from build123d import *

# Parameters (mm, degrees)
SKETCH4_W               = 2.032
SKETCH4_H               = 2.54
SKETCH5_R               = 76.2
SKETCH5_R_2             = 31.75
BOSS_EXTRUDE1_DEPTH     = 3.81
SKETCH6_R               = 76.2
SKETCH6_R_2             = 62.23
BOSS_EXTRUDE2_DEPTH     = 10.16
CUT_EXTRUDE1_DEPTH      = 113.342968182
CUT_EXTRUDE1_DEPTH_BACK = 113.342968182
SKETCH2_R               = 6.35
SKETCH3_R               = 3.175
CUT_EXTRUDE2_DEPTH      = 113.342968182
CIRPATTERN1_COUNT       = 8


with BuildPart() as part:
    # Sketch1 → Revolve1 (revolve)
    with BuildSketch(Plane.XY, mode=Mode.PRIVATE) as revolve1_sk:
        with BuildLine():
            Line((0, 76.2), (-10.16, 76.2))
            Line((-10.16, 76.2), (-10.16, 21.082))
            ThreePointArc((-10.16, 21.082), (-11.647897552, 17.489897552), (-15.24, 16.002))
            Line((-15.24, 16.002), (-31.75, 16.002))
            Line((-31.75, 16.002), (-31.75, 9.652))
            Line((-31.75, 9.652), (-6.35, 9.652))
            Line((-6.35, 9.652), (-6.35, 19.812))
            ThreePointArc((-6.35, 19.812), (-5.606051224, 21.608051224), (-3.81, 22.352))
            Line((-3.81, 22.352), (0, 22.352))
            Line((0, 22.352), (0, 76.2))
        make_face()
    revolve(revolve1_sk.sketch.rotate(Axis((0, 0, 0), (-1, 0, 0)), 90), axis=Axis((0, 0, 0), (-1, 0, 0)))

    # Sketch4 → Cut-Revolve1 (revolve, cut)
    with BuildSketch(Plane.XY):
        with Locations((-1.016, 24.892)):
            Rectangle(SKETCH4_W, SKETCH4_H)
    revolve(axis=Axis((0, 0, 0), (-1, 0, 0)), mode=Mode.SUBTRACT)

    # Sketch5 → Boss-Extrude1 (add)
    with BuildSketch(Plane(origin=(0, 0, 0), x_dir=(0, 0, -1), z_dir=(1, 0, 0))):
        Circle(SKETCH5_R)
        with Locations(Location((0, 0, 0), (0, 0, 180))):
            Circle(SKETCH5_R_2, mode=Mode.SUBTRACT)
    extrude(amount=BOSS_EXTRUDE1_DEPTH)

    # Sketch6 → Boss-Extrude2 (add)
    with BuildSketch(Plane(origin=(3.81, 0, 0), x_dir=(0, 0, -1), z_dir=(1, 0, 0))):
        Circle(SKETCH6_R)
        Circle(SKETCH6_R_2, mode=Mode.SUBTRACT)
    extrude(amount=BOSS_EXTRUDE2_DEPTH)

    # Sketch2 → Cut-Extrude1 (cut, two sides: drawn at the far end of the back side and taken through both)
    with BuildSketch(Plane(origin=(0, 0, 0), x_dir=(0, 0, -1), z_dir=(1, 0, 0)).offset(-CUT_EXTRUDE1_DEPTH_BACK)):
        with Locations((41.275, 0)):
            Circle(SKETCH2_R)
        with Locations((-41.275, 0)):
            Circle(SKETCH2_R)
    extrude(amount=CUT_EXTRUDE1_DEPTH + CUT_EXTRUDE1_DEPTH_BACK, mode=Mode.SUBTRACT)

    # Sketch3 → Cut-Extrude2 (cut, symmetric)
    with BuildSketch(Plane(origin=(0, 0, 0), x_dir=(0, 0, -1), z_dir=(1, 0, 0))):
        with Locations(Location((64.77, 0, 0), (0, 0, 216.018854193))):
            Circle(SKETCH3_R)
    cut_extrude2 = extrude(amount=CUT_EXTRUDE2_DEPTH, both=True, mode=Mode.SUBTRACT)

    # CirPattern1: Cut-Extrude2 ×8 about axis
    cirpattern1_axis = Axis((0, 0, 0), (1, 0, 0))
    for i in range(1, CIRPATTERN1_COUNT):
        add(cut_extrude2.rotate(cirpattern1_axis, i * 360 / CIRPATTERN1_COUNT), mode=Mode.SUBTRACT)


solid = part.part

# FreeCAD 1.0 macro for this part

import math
import FreeCAD as App
import Part
import Sketcher
Q = App.Units.Quantity

doc = App.newDocument("Part")
body = doc.addObject("PartDesign::Body", "Body")

sketch1 = doc.addObject("Sketcher::SketchObject", "Sketch")
body.addObject(sketch1)
sketch1.AttachmentSupport = (doc.XY_Plane, [""])
sketch1.MapMode = "FlatFace"
sketch1.addGeometry(Part.LineSegment(App.Vector(0, 76.2, 0), App.Vector(-10.2, 76.2, 0)), False)
sketch1.addGeometry(Part.LineSegment(App.Vector(-10.2, 76.2, 0), App.Vector(-10.2, 21.1, 0)), False)
sketch1.addGeometry(Part.ArcOfCircle(Part.Circle(App.Vector(-15.2, 21.1, 0), App.Vector(0, 0, 1), 5.1), math.radians(-90), math.radians(0)), False)
sketch1.addGeometry(Part.LineSegment(App.Vector(-15.2, 16, 0), App.Vector(-31.8, 16, 0)), False)
sketch1.addGeometry(Part.LineSegment(App.Vector(-31.8, 16, 0), App.Vector(-31.8, 9.7, 0)), False)
sketch1.addGeometry(Part.LineSegment(App.Vector(-31.8, 9.7, 0), App.Vector(-6.3, 9.7, 0)), False)
sketch1.addGeometry(Part.LineSegment(App.Vector(-6.3, 9.7, 0), App.Vector(-6.3, 19.8, 0)), False)
sketch1.addGeometry(Part.ArcOfCircle(Part.Circle(App.Vector(-3.8, 19.8, 0), App.Vector(0, 0, 1), 2.5), math.radians(90), math.radians(180)), False)
sketch1.addGeometry(Part.LineSegment(App.Vector(-3.8, 22.4, 0), App.Vector(0, 22.4, 0)), False)
sketch1.addGeometry(Part.LineSegment(App.Vector(0, 22.4, 0), App.Vector(0, 76.2, 0)), False)
sketch1.addConstraint(Sketcher.Constraint("Coincident", 0, 2, 1, 1))
sketch1.addConstraint(Sketcher.Constraint("Tangent", 1, 2, 2, 2))
sketch1.addConstraint(Sketcher.Constraint("Tangent", 2, 1, 3, 1))
sketch1.addConstraint(Sketcher.Constraint("Coincident", 3, 2, 4, 1))
sketch1.addConstraint(Sketcher.Constraint("Coincident", 4, 2, 5, 1))
sketch1.addConstraint(Sketcher.Constraint("Coincident", 5, 2, 6, 1))
sketch1.addConstraint(Sketcher.Constraint("Tangent", 6, 2, 7, 2))
sketch1.addConstraint(Sketcher.Constraint("Tangent", 7, 1, 8, 1))
sketch1.addConstraint(Sketcher.Constraint("Coincident", 8, 2, 9, 1))
sketch1.addConstraint(Sketcher.Constraint("Coincident", 9, 2, 0, 1))
sketch1.addConstraint(Sketcher.Constraint("Horizontal", 0))
sketch1.addConstraint(Sketcher.Constraint("Vertical", 1))
sketch1.addConstraint(Sketcher.Constraint("Horizontal", 3))
sketch1.addConstraint(Sketcher.Constraint("Vertical", 4))
sketch1.addConstraint(Sketcher.Constraint("Horizontal", 5))
sketch1.addConstraint(Sketcher.Constraint("Vertical", 6))
sketch1.addConstraint(Sketcher.Constraint("Horizontal", 8))
sketch1.addConstraint(Sketcher.Constraint("Vertical", 9))
sketch1.addConstraint(Sketcher.Constraint("PointOnObject", 8, 2, -2))
sketch1.addConstraint(Sketcher.Constraint("Equal", 0, 6))
sketch1.addConstraint(Sketcher.Constraint("Radius", 2, Q("0.2 in")))
sketch1.addConstraint(Sketcher.Constraint("Radius", 7, Q("0.1 in")))
sketch1.addConstraint(Sketcher.Constraint("DistanceX", 5, 1, 5, 2, Q("1 in")))
sketch1.addConstraint(Sketcher.Constraint("DistanceX", 0, 2, 0, 1, Q("0.4 in")))
sketch1.addConstraint(Sketcher.Constraint("DistanceY", -1, 1, 0, 2, Q("3 in")))
sketch1.addConstraint(Sketcher.Constraint("DistanceX", 3, 2, 3, 1, Q("0.65 in")))
sketch1.addConstraint(Sketcher.Constraint("DistanceY", 1, 2, 1, 1, Q("2.17 in")))
sketch1.addConstraint(Sketcher.Constraint("DistanceY", 4, 2, 4, 1, Q("0.25 in")))
revolution = doc.addObject("PartDesign::Revolution", "Revolution")
body.addObject(revolution)
revolution.Profile = sketch1
revolution.ReferenceAxis = (sketch1, ["H_Axis"])
revolution.Angle = 360

sketch2 = doc.addObject("Sketcher::SketchObject", "Sketch001")
body.addObject(sketch2)
sketch2.AttachmentSupport = (doc.XY_Plane, [""])
sketch2.MapMode = "FlatFace"
sketch2.addGeometry(Part.LineSegment(App.Vector(-2, 26.2, 0), App.Vector(-2, 23.6, 0)), False)
sketch2.addGeometry(Part.LineSegment(App.Vector(-2, 23.6, 0), App.Vector(0, 23.6, 0)), False)
sketch2.addGeometry(Part.LineSegment(App.Vector(0, 23.6, 0), App.Vector(0, 26.2, 0)), False)
sketch2.addGeometry(Part.LineSegment(App.Vector(0, 26.2, 0), App.Vector(-2, 26.2, 0)), False)
sketch2.addConstraint(Sketcher.Constraint("Coincident", 0, 2, 1, 1))
sketch2.addConstraint(Sketcher.Constraint("Coincident", 1, 2, 2, 1))
sketch2.addConstraint(Sketcher.Constraint("Coincident", 2, 2, 3, 1))
sketch2.addConstraint(Sketcher.Constraint("Coincident", 3, 2, 0, 1))
sketch2.addConstraint(Sketcher.Constraint("Vertical", 0))
sketch2.addConstraint(Sketcher.Constraint("Horizontal", 1))
sketch2.addConstraint(Sketcher.Constraint("Vertical", 2))
sketch2.addConstraint(Sketcher.Constraint("Horizontal", 3))
sketch2.addConstraint(Sketcher.Constraint("PointOnObject", 1, 2, -2))
sketch2.addConstraint(Sketcher.Constraint("DistanceY", 0, 2, 0, 1, Q("0.1 in")))
sketch2.addConstraint(Sketcher.Constraint("DistanceX", 1, 1, 1, 2, Q("0.08 in")))
sketch2.addConstraint(Sketcher.Constraint("DistanceY", -1, 1, 0, 2, Q("0.93 in")))
groove = doc.addObject("PartDesign::Groove", "Groove")
body.addObject(groove)
groove.Profile = sketch2
groove.ReferenceAxis = (sketch2, ["H_Axis"])
groove.Angle = 360

sketch3 = doc.addObject("Sketcher::SketchObject", "Sketch002")
body.addObject(sketch3)
sketch3.AttachmentSupport = (doc.YZ_Plane, [""])
sketch3.MapMode = "FlatFace"
sketch3.addGeometry(Part.Circle(App.Vector(0, 0, 0), App.Vector(0, 0, 1), 76), False)
sketch3.addGeometry(Part.Circle(App.Vector(0, 0, 0), App.Vector(0, 0, 1), 32), False)
sketch3.addConstraint(Sketcher.Constraint("Coincident", 0, 3, -1, 1))
sketch3.addConstraint(Sketcher.Constraint("Coincident", 1, 3, -1, 1))
sketch3.addConstraint(Sketcher.Constraint("Diameter", 0, Q("6 in")))
sketch3.addConstraint(Sketcher.Constraint("Diameter", 1, Q("2.5 in")))
pad1 = doc.addObject("PartDesign::Pad", "Pad")
body.addObject(pad1)
pad1.Profile = sketch3
pad1.Length = Q("0.15 in")

sketch4 = doc.addObject("Sketcher::SketchObject", "Sketch003")
body.addObject(sketch4)
sketch4.AttachmentSupport = (doc.YZ_Plane, [""])
sketch4.MapMode = "FlatFace"
sketch4.AttachmentOffset = App.Placement(App.Vector(0, 0, 0.15 * 25.4), App.Rotation())
sketch4.addGeometry(Part.Circle(App.Vector(0, 0, 0), App.Vector(0, 0, 1), 76), False)
sketch4.addGeometry(Part.Circle(App.Vector(0, 0, 0), App.Vector(0, 0, 1), 62), False)
sketch4.addConstraint(Sketcher.Constraint("Coincident", 0, 3, -1, 1))
sketch4.addConstraint(Sketcher.Constraint("Coincident", 1, 3, -1, 1))
sketch4.addConstraint(Sketcher.Constraint("Diameter", 0, Q("6 in")))
sketch4.addConstraint(Sketcher.Constraint("Diameter", 1, Q("4.9 in")))
pad2 = doc.addObject("PartDesign::Pad", "Pad001")
body.addObject(pad2)
pad2.Profile = sketch4
pad2.Length = Q("0.4 in")

sketch5 = doc.addObject("Sketcher::SketchObject", "Sketch004")
body.addObject(sketch5)
sketch5.AttachmentSupport = (doc.YZ_Plane, [""])
sketch5.MapMode = "FlatFace"
sketch5.addGeometry(Part.Circle(App.Vector(0, -41, 0), App.Vector(0, 0, 1), 6), False)
sketch5.addGeometry(Part.Circle(App.Vector(0, 41, 0), App.Vector(0, 0, 1), 6), False)
sketch5.addConstraint(Sketcher.Constraint("Equal", 0, 1))
sketch5.addConstraint(Sketcher.Constraint("Symmetric", 0, 3, 1, 3, -1, 1))
sketch5.addConstraint(Sketcher.Constraint("PointOnObject", 0, 3, -2))
sketch5.addConstraint(Sketcher.Constraint("Diameter", 0, Q("0.5 in")))
sketch5.addConstraint(Sketcher.Constraint("DistanceY", 0, 3, 1, 3, Q("3.25 in")))
pocket1 = doc.addObject("PartDesign::Pocket", "Pocket")
body.addObject(pocket1)
pocket1.Profile = sketch5
pocket1.Type = "ThroughAll"
pocket1.Midplane = True

sketch6 = doc.addObject("Sketcher::SketchObject", "Sketch005")
body.addObject(sketch6)
sketch6.AttachmentSupport = (doc.YZ_Plane, [""])
sketch6.MapMode = "FlatFace"
sketch6.addGeometry(Part.Circle(App.Vector(0, -64.8, 0), App.Vector(0, 0, 1), 3.2), False)
sketch6.addConstraint(Sketcher.Constraint("PointOnObject", 0, 3, -2))
sketch6.addConstraint(Sketcher.Constraint("Diameter", 0, Q("0.25 in")))
sketch6.addConstraint(Sketcher.Constraint("DistanceY", 0, 3, -1, 1, Q("2.55 in")))
pocket2 = doc.addObject("PartDesign::Pocket", "Pocket001")
body.addObject(pocket2)
pocket2.Profile = sketch6
pocket2.Length = 226.685936
pocket2.Midplane = True
doc.recompute()

polarpattern = doc.addObject("PartDesign::PolarPattern", "PolarPattern")
body.addObject(polarpattern)
polarpattern.Originals = [pocket2]
polarpattern.Axis = (doc.X_Axis, [""])
polarpattern.Angle = 360
polarpattern.Occurrences = 8
body.Tip = polarpattern

doc.recompute()
